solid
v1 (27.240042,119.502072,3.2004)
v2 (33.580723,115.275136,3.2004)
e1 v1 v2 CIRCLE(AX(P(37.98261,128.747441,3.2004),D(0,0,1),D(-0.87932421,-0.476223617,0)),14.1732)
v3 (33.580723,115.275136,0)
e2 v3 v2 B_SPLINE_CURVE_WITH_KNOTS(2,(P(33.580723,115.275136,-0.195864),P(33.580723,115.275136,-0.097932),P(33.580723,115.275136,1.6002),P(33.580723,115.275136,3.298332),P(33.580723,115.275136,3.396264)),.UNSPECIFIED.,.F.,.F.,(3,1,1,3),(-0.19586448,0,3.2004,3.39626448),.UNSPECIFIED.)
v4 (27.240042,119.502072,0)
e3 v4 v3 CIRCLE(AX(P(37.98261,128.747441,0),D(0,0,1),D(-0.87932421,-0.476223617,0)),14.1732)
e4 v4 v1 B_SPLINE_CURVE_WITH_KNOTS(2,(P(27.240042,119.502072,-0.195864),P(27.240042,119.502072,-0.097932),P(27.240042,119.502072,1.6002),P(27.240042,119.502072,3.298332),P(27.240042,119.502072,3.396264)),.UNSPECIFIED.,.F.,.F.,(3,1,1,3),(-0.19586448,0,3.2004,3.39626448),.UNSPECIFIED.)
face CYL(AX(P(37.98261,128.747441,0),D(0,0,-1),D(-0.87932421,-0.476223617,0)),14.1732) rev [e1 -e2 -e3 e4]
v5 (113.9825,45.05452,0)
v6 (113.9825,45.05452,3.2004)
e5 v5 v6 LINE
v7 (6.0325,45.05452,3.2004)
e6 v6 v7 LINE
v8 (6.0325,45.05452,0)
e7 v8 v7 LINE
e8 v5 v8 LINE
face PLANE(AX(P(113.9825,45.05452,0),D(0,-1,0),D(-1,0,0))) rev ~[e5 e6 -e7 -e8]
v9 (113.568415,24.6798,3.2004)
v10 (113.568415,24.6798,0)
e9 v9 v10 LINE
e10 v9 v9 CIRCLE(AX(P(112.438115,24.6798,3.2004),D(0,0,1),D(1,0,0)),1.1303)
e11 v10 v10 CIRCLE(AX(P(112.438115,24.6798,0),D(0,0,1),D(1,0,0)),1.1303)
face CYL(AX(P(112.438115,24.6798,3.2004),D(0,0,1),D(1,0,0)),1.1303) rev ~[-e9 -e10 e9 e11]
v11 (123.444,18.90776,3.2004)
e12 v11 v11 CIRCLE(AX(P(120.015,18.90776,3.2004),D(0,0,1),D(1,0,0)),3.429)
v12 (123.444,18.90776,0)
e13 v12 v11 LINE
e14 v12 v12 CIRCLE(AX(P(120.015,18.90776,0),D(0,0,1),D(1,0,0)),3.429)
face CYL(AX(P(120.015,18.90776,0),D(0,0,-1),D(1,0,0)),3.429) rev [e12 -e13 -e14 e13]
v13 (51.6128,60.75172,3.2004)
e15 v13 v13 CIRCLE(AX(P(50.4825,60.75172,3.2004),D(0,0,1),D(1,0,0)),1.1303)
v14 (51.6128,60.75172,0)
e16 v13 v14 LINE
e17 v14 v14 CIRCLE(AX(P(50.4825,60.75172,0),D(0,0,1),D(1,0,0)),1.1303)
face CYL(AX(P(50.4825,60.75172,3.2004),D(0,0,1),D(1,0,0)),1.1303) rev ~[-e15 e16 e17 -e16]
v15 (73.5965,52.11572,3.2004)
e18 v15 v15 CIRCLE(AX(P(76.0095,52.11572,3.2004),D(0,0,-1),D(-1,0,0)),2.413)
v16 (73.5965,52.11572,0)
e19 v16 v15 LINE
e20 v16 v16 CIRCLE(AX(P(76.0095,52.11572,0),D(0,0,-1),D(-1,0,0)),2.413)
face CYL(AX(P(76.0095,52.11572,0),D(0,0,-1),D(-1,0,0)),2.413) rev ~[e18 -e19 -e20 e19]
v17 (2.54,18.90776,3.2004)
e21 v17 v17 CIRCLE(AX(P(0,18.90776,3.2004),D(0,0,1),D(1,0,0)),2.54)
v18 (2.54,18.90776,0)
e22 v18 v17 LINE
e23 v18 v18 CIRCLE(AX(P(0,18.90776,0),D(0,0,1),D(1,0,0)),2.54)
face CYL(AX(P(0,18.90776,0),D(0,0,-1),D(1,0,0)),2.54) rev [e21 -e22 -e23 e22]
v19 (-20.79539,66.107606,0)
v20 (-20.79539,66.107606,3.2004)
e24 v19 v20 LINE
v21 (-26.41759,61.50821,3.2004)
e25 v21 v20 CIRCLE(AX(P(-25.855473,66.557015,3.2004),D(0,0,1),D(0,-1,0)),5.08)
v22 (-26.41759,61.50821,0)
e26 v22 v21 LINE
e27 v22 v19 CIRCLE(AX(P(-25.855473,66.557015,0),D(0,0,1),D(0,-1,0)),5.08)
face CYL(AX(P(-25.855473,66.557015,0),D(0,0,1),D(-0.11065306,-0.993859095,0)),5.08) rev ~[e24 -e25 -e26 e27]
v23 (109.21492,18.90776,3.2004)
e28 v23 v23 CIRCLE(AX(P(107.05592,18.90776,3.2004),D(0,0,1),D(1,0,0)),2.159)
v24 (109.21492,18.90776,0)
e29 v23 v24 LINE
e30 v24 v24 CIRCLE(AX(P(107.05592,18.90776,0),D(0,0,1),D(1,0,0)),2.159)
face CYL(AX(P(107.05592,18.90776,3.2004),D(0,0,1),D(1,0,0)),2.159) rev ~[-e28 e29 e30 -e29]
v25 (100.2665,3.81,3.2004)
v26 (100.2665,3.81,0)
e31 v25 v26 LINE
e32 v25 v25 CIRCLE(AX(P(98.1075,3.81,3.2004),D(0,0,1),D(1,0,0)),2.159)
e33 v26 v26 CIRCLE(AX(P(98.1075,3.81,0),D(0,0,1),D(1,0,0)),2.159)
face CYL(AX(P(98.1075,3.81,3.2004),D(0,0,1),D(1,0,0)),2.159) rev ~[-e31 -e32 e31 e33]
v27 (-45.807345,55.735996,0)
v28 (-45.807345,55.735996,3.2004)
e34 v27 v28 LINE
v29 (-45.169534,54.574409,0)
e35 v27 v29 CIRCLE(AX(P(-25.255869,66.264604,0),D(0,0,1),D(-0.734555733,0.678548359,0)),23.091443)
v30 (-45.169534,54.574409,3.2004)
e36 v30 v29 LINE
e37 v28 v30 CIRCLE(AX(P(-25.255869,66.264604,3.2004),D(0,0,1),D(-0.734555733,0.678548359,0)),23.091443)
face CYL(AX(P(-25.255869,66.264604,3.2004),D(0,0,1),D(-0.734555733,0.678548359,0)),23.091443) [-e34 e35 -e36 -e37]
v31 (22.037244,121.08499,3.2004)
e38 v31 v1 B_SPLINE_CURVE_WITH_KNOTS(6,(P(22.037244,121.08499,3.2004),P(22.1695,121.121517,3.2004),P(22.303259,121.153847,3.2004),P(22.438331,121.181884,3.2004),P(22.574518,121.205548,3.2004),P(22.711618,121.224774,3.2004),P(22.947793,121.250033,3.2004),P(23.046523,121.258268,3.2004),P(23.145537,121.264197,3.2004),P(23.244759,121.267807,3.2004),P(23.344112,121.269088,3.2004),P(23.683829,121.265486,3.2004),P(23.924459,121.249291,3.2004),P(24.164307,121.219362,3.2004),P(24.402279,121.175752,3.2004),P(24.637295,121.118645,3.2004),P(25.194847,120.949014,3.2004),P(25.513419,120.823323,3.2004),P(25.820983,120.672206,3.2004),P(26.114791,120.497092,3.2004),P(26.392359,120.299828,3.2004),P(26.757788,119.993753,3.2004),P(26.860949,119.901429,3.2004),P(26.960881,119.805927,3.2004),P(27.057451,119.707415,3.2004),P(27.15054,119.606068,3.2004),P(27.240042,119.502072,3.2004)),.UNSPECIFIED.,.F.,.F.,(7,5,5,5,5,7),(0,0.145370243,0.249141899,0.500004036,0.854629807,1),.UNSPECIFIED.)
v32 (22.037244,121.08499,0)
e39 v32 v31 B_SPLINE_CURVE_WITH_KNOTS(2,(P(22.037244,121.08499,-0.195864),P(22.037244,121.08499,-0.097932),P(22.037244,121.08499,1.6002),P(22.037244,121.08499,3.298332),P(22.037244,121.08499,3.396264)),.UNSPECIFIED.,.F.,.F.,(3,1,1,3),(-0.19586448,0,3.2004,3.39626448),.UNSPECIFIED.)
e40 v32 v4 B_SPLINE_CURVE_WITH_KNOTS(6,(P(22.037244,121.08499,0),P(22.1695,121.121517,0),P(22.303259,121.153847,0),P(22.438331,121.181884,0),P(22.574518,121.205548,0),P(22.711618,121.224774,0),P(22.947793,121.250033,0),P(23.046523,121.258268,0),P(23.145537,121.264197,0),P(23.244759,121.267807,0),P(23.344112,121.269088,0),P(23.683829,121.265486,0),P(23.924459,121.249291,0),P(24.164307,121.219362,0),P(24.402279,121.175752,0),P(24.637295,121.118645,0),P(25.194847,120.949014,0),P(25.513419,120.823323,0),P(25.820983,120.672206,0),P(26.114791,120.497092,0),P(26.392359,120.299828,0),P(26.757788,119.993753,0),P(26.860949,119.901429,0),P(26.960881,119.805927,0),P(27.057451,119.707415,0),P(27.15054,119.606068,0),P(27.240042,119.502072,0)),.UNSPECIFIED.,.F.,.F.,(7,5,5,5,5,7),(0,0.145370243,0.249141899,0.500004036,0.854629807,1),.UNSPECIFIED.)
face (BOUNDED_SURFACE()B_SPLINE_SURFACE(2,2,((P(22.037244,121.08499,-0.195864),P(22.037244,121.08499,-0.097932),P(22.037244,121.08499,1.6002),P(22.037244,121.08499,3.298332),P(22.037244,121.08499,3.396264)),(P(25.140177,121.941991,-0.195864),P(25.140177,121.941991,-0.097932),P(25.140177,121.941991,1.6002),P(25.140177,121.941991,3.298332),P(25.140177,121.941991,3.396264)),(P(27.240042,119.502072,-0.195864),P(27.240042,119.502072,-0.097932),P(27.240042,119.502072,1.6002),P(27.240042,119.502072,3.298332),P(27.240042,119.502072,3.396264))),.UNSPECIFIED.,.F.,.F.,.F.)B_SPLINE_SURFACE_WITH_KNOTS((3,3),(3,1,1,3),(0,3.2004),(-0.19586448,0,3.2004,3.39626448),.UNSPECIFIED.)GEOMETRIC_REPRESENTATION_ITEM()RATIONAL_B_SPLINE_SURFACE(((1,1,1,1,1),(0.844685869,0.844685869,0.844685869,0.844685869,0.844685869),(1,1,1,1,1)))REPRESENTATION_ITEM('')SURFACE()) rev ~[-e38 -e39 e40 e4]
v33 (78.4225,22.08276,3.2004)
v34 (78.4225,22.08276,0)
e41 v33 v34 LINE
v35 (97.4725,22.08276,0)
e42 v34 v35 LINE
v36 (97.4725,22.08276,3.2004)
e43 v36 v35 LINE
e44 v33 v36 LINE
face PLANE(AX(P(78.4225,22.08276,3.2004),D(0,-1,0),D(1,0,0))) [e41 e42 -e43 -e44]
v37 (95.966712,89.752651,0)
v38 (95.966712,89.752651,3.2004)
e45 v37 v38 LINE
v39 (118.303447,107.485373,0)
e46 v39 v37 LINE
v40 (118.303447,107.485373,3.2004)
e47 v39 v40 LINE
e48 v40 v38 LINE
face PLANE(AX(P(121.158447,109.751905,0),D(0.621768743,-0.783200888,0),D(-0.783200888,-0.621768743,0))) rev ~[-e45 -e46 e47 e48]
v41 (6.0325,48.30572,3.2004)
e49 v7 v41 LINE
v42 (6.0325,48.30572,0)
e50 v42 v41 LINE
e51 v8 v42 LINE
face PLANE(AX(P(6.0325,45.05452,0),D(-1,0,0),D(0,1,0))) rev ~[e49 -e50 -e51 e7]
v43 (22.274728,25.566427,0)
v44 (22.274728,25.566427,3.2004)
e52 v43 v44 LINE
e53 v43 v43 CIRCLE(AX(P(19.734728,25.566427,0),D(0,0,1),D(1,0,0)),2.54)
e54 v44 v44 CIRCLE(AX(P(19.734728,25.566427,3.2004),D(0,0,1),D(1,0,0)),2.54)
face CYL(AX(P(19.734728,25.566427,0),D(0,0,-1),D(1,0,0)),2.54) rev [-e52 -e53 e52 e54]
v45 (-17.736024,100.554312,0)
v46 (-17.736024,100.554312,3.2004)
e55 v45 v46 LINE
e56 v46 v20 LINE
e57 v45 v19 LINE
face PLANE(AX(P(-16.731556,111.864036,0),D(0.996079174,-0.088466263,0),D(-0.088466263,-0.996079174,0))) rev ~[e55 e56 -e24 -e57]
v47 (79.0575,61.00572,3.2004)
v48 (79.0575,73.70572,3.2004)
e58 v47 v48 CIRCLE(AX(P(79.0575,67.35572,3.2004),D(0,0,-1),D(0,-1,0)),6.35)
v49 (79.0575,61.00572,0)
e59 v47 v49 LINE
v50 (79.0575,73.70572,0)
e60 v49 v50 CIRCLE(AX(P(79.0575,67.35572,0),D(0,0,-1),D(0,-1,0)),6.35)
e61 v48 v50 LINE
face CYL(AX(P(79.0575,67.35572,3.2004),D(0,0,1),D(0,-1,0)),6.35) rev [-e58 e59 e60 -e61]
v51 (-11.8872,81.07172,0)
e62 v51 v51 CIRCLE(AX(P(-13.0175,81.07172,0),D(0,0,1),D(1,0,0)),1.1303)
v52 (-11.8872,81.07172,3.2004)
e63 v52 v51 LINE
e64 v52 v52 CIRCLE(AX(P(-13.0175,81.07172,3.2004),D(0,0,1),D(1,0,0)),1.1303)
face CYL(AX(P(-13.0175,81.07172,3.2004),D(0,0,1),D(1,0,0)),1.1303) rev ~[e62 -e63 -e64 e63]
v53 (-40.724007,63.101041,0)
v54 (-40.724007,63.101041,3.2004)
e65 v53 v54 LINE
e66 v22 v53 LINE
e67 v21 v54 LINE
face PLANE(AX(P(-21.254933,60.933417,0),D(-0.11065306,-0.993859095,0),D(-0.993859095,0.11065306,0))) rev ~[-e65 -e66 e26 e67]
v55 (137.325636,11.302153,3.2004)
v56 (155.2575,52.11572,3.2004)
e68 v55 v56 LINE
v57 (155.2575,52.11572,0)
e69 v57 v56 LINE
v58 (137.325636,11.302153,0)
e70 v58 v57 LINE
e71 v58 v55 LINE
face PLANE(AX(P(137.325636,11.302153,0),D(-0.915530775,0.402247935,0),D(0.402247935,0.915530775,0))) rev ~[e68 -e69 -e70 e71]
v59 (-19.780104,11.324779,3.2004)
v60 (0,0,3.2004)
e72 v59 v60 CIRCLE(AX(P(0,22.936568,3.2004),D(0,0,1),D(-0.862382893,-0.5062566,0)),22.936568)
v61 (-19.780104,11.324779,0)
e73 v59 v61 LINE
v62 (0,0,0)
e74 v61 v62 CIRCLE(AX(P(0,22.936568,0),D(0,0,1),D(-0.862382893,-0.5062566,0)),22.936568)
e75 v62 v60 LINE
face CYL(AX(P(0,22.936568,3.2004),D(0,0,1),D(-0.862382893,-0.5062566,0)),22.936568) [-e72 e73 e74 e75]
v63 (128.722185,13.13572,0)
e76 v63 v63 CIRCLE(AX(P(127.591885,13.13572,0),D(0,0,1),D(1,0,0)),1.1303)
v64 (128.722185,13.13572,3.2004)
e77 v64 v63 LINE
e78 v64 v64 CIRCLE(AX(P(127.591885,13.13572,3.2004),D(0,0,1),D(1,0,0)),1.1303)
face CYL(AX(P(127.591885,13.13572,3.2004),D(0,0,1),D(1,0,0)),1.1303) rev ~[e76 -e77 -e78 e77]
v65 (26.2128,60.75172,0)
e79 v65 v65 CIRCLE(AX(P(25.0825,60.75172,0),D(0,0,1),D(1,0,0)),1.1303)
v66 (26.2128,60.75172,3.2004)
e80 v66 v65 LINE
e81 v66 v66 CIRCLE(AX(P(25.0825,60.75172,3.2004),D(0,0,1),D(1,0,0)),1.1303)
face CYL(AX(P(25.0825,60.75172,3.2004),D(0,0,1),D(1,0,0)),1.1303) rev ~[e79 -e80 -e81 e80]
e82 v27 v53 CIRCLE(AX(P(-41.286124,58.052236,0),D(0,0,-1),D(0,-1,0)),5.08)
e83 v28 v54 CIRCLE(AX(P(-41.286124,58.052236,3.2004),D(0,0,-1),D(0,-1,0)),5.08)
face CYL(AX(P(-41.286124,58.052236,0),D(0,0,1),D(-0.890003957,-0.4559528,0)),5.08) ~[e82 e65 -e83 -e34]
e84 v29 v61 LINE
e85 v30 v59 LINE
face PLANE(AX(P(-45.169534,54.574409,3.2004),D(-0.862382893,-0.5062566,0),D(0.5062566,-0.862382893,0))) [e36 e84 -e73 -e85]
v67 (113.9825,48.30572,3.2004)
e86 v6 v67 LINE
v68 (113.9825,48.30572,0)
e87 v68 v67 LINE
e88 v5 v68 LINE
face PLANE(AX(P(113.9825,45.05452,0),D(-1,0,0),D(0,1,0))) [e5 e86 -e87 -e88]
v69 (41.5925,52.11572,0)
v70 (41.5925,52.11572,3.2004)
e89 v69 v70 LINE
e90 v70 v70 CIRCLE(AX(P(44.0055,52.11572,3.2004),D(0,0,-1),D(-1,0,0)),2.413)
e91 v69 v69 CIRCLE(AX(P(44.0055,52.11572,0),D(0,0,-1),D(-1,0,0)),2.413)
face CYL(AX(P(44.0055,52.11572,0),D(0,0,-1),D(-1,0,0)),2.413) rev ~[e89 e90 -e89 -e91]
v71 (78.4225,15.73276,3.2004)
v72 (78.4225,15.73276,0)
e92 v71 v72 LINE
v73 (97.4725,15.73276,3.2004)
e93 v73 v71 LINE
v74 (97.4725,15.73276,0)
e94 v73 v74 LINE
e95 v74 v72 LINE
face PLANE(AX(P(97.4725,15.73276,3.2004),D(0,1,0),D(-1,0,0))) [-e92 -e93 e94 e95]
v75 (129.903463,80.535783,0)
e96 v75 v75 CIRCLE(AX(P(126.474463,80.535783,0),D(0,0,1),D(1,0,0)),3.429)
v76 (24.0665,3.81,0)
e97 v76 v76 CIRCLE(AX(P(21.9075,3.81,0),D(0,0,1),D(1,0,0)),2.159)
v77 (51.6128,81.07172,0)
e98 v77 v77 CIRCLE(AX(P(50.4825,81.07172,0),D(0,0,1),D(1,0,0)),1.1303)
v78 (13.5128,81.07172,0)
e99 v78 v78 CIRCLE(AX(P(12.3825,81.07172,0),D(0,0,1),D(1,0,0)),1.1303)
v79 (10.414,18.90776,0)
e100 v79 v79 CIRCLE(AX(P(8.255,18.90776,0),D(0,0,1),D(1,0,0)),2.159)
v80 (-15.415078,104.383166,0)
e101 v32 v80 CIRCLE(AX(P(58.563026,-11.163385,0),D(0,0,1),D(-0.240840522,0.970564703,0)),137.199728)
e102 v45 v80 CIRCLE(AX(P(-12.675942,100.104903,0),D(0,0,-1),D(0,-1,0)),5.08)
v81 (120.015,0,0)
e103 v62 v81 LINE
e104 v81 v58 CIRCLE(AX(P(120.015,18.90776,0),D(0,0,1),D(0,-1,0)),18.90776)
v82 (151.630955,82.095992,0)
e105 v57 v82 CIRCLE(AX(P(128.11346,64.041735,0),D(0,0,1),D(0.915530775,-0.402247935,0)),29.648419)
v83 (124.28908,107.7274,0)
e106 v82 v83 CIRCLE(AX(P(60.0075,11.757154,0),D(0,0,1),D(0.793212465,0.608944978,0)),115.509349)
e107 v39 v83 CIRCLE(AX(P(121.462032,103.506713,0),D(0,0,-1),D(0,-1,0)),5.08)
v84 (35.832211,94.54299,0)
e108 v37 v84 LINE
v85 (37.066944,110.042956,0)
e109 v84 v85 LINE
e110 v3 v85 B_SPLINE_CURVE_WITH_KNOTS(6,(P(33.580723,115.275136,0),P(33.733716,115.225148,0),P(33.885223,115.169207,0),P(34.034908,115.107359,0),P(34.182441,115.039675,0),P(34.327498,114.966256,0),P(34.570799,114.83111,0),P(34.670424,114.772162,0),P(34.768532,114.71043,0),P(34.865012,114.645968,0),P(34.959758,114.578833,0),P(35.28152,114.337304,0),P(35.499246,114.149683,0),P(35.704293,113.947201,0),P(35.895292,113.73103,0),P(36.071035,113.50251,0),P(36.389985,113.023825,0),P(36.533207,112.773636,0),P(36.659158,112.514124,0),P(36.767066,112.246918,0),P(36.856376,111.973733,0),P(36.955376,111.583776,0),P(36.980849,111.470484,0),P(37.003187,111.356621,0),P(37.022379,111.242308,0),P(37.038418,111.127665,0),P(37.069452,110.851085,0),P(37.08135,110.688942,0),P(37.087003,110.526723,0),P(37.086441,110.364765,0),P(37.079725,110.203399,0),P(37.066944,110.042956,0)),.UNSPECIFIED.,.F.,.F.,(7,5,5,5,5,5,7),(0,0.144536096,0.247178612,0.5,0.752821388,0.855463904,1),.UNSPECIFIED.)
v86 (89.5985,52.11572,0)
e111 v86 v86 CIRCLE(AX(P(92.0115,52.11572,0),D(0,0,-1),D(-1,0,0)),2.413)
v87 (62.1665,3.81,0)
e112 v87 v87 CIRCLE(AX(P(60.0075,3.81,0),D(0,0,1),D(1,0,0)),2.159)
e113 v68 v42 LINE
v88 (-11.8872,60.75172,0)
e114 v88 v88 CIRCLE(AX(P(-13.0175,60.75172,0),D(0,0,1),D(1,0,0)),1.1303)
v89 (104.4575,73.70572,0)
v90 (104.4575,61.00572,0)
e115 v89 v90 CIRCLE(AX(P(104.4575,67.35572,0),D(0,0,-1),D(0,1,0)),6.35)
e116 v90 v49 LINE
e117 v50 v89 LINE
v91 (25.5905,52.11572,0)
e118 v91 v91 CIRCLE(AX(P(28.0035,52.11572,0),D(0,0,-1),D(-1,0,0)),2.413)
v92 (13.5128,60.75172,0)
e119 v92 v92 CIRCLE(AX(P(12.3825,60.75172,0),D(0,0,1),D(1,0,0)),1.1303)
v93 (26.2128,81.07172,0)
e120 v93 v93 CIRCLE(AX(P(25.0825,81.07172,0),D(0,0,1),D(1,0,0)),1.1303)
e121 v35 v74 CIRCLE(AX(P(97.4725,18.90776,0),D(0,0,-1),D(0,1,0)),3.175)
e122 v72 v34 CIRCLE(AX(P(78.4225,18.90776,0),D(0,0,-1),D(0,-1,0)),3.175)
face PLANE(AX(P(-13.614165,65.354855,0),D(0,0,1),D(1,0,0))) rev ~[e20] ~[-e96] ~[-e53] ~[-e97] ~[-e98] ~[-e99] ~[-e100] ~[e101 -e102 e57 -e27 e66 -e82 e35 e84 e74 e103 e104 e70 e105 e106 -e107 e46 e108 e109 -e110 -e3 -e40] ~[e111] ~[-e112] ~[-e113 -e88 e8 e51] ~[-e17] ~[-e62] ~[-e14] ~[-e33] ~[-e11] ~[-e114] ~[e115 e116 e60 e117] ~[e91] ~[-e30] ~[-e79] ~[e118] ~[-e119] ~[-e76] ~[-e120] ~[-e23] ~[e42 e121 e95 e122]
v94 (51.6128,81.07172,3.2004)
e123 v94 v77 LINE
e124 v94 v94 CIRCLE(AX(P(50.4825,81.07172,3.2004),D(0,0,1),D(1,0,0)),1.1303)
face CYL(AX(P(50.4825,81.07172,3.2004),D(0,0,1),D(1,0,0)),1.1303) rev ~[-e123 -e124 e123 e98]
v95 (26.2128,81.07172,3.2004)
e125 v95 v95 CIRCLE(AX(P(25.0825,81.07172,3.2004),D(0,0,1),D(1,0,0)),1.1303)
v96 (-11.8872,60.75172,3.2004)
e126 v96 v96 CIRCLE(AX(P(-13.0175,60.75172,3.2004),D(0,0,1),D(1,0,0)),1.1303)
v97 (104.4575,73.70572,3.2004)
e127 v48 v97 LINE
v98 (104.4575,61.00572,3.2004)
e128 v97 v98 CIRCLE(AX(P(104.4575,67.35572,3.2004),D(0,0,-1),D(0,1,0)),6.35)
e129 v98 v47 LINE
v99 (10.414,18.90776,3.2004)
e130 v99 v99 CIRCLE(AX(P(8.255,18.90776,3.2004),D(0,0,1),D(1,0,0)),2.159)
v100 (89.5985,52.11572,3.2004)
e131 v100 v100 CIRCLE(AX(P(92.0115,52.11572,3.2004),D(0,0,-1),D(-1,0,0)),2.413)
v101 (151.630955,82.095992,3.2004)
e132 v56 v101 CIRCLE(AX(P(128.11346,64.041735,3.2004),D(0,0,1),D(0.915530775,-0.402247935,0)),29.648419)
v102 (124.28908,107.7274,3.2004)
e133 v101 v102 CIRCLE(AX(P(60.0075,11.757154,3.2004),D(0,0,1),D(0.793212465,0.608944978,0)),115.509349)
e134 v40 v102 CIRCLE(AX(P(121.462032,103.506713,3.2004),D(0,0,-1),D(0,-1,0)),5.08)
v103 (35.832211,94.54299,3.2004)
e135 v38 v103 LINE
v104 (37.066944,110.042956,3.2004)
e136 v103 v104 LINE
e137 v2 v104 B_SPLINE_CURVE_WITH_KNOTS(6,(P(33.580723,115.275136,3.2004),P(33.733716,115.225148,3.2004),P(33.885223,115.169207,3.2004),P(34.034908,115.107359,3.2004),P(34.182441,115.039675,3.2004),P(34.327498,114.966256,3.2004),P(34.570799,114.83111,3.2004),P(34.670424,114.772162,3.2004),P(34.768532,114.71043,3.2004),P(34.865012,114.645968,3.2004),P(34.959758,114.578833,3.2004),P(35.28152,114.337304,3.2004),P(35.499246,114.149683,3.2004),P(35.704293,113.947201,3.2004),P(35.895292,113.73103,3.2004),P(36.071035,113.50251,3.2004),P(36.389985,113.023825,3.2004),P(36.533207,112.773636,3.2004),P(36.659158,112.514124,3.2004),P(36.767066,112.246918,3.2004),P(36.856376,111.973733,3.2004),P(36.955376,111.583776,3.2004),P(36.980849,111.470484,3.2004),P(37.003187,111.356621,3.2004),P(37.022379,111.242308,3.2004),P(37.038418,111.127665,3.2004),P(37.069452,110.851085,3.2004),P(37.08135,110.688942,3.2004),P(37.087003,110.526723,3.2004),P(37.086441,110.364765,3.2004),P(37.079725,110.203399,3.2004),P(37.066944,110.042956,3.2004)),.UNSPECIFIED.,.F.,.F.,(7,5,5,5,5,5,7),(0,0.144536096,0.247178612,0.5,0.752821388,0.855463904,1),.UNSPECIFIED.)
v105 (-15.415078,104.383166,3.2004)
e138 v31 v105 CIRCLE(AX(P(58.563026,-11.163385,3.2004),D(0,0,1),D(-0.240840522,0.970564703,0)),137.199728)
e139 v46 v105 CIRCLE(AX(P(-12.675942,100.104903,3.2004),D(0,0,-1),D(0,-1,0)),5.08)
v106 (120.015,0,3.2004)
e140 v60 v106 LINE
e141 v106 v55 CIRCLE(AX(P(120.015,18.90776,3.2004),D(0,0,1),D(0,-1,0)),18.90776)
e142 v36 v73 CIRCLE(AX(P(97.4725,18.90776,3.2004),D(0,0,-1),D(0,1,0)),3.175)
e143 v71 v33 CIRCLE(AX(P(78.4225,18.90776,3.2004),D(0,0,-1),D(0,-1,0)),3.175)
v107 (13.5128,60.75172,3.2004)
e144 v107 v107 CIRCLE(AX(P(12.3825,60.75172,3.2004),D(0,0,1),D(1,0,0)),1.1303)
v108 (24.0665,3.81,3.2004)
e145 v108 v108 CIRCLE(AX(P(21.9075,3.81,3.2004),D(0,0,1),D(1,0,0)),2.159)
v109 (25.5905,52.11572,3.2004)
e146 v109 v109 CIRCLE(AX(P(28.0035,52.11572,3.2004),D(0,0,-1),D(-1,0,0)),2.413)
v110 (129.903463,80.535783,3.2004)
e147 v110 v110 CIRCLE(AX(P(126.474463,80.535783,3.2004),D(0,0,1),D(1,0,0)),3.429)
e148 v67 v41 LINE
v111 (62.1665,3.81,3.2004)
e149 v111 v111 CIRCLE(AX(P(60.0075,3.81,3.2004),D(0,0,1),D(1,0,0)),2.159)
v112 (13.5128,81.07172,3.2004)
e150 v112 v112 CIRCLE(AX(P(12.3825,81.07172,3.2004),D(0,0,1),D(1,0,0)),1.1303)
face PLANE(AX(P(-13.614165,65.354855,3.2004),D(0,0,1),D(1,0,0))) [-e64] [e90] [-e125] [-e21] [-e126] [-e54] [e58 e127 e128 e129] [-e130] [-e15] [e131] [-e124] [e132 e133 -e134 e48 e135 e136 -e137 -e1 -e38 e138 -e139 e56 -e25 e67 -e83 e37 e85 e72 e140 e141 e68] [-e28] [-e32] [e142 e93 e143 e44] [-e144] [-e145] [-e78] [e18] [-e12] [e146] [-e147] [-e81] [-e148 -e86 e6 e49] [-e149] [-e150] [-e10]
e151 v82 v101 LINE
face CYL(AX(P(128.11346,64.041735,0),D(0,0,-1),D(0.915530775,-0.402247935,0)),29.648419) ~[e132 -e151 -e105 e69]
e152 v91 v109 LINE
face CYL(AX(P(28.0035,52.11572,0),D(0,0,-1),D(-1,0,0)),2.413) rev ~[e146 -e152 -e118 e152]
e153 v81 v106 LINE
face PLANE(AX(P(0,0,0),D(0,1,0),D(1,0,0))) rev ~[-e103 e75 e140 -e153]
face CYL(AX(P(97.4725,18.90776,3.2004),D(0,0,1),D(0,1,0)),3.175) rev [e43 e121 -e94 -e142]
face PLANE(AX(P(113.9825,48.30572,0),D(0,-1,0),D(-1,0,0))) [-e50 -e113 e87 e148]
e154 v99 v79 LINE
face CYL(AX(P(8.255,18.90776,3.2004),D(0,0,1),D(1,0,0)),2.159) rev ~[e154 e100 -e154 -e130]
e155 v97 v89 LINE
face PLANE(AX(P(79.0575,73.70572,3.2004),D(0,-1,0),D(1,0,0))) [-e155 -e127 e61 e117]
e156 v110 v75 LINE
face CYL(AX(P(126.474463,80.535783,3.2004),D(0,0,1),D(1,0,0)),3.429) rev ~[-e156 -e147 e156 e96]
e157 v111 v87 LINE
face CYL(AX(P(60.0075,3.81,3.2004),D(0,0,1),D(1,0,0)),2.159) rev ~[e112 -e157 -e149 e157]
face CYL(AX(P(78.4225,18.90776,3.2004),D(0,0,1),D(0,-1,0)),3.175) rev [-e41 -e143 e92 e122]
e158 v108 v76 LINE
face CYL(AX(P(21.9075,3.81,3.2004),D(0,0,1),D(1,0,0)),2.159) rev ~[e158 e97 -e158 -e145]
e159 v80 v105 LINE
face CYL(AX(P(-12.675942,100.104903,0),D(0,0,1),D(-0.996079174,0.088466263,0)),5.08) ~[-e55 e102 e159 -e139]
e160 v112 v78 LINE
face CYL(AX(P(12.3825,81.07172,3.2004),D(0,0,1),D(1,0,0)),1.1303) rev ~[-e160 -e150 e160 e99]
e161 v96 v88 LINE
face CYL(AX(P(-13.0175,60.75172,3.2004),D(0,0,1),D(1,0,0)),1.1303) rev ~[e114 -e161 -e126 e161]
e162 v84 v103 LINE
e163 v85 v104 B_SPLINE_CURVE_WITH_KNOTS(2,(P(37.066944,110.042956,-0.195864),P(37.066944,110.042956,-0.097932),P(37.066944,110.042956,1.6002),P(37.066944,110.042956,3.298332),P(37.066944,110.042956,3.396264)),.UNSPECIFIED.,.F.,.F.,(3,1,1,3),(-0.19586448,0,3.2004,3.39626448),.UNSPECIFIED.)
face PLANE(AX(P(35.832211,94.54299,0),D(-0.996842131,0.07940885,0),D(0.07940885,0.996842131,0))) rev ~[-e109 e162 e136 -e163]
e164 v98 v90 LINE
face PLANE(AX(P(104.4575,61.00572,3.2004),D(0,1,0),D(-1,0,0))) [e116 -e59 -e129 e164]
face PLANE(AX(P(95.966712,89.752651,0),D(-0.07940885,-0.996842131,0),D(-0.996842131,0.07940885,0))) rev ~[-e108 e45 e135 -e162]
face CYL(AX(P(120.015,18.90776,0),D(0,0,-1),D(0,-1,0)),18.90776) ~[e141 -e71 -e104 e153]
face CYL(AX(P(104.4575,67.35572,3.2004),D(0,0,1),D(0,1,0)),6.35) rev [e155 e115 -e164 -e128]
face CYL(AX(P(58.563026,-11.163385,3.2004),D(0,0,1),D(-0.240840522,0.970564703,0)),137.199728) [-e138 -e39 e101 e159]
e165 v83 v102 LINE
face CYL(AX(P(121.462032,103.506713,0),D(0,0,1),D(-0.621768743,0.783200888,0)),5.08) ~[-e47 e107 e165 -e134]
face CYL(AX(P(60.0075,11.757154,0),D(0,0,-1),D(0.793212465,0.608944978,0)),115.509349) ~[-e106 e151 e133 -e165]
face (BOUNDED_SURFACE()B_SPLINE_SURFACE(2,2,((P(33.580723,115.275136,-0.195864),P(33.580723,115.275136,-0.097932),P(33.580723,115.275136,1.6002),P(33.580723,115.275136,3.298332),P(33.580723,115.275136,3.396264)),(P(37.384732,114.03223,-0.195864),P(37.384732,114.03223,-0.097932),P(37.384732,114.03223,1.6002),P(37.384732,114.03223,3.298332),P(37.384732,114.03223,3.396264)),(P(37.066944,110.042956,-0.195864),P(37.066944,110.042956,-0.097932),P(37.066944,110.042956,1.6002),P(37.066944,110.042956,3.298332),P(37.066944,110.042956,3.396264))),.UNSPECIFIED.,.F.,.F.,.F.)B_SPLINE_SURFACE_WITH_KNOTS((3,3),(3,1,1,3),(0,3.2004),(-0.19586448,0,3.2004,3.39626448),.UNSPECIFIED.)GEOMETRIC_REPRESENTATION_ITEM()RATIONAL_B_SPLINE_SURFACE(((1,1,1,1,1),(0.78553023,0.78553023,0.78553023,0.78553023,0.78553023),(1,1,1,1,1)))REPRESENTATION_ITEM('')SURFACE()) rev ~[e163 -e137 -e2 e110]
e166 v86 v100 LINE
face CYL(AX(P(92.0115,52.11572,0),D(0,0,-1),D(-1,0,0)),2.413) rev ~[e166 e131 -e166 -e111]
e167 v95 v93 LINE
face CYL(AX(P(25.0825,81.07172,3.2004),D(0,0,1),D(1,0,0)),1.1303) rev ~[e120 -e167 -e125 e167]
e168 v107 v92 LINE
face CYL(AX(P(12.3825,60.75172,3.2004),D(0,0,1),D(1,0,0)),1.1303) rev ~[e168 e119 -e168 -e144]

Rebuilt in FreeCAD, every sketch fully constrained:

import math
import FreeCAD as App
import Part
import Sketcher
Q = App.Units.Quantity


def edges_at(feature, points):
    """Names of the edges that pass closest to the given points."""
    edges = feature.Shape.Edges
    near = lambda p: min(range(len(edges)), key=lambda i: edges[i].distToShape(Part.Vertex(*p))[0])
    return sorted({f"Edge{near(p) + 1}" for p in points})

doc = App.newDocument("Part")
params = doc.addObject("Spreadsheet::Sheet", "Params")
for row, (alias, value) in enumerate([
    ("sketch1_diameter", "0.2 in"),
    ("sketch1_diameter2", "0.27 in"),
    ("sketch1_width", "4.725 in"),
    ("pad1_length", "0.126 in"),
    ("sketch2_diameter", "0.19 in"),
    ("pocket1_length", "0.126 in"),
    ("sketch3_diameter", "0.17 in"),
    ("pocket2_length", "0.126 in"),
    ("sketch4_width", "4.25 in"),
    ("sketch4_height", "0.128 in"),
    ("pocket3_length", "0.126 in"),
    ("sketch5_diameter", "0.27 in"),
    ("pocket4_length", "0.126 in"),
    ("sketch6_length", "2.375 in"),
    ("pocket5_length", "0.126 in"),
    ("sketch7_radius", "0.558 in"),
    ("pocket6_length", "0.126 in"),
    ("pad2_length", "0.126 in"),
    ("sketch9_diameter", "0.089 in"),
    ("pocket7_length", "0.126 in"),
    ("sketch10_width", "1 in"),
    ("sketch10_radius", "0.25 in"),
    ("sketch10_radius2", "0.125 in"),
    ("sketch10_width2", "0.75 in"),
    ("pocket8_length", "0.126 in"),
    ("fillet_radius", "0.2 in"),
    ("sketch11_diameter", "0.089 in"),
    ("pocket9_length", "0.126 in"),
    ("sketch12_diameter", "0.17 in"),
    ("pocket10_length", "0.126 in"),
    ("pocket11_length", "0.126 in"),
    ("fillet2_radius", "0.2 in"),
], start=1):
    params.set(f"A{row}", alias)
    params.set(f"B{row}", "=" + value)
    params.setAlias(f"B{row}", alias)

body = doc.addObject("PartDesign::Body", "Body")

# Sketch on XY plane
sketch1 = doc.addObject("Sketcher::SketchObject", "Sketch")
body.addObject(sketch1)
sketch1.AttachmentSupport = (doc.XY_Plane, [""])
sketch1.MapMode = "FlatFace"
sketch1.addGeometry(Part.LineSegment(App.Vector(0, 0, 0), App.Vector(120, 0, 0)), False)
sketch1.addGeometry(Part.ArcOfCircle(Part.Circle(App.Vector(120, 18.9, 0), App.Vector(0, 0, 1), 18.9), math.radians(-90), math.radians(-24)), False)
sketch1.addGeometry(Part.LineSegment(App.Vector(137.3, 11.3, 0), App.Vector(155.3, 52.1, 0)), False)
sketch1.addGeometry(Part.ArcOfCircle(Part.Circle(App.Vector(128.1, 64, 0), App.Vector(0, 0, 1), 29.6), math.radians(-24), math.radians(38)), False)
sketch1.addGeometry(Part.ArcOfCircle(Part.Circle(App.Vector(60, 11.8, 0), App.Vector(0, 0, 1), 115.5), math.radians(38), math.radians(142)), False)
sketch1.addGeometry(Part.ArcOfCircle(Part.Circle(App.Vector(-8.1, 64, 0), App.Vector(0, 0, 1), 29.6), math.radians(142), math.radians(204)), False)
sketch1.addGeometry(Part.LineSegment(App.Vector(-35.2, 52.1, 0), App.Vector(-17.3, 11.3, 0)), False)
sketch1.addGeometry(Part.ArcOfCircle(Part.Circle(App.Vector(0, 18.9, 0), App.Vector(0, 0, 1), 18.9), math.radians(-156), math.radians(-90)), False)
sketch1.addGeometry(Part.Circle(App.Vector(0, 18.9, 0), App.Vector(0, 0, 1), 2.5), False)
sketch1.addGeometry(Part.Circle(App.Vector(120, 18.9, 0), App.Vector(0, 0, 1), 3.4), False)
sketch1.addGeometry(Part.Circle(App.Vector(19.7, 25.6, 0), App.Vector(0, 0, 1), 2.5), False)
sketch1.addConstraint(Sketcher.Constraint("Tangent", 0, 2, 1, 1))
sketch1.addConstraint(Sketcher.Constraint("Tangent", 1, 2, 2, 1))
sketch1.addConstraint(Sketcher.Constraint("Tangent", 2, 2, 3, 1))
sketch1.addConstraint(Sketcher.Constraint("Tangent", 3, 2, 4, 1))
sketch1.addConstraint(Sketcher.Constraint("Tangent", 4, 2, 5, 1))
sketch1.addConstraint(Sketcher.Constraint("Tangent", 5, 2, 6, 1))
sketch1.addConstraint(Sketcher.Constraint("Tangent", 6, 2, 7, 1))
sketch1.addConstraint(Sketcher.Constraint("Tangent", 7, 2, 0, 1))
sketch1.addConstraint(Sketcher.Constraint("Horizontal", 0))
sketch1.addConstraint(Sketcher.Constraint("Coincident", 7, 2, -1, 1))
sketch1.addConstraint(Sketcher.Constraint("Coincident", 8, 3, 7, 3))
sketch1.addConstraint(Sketcher.Constraint("Coincident", 9, 3, 1, 3))
sketch1.addConstraint(Sketcher.Constraint("Equal", 3, 5))
sketch1.addConstraint(Sketcher.Constraint("Equal", 1, 7))
sketch1.addConstraint(Sketcher.Constraint("Equal", 8, 10))
sketch1.addConstraint(Sketcher.Constraint("Horizontal", 3, 3, 5, 3))
sketch1.addConstraint(Sketcher.Constraint("Horizontal", 2, 2, 5, 2))
sketch1.addConstraint(Sketcher.Constraint("Diameter", 8, Q("0.2 in")))
sketch1.addConstraint(Sketcher.Constraint("Diameter", 9, Q("0.27 in")))
sketch1.addConstraint(Sketcher.Constraint("Radius", 1, Q("0.7444 in")))
sketch1.addConstraint(Sketcher.Constraint("DistanceX", 0, 1, 0, 2, Q("4.725 in")))
sketch1.addConstraint(Sketcher.Constraint("Radius", 3, 29.648419))
sketch1.addConstraint(Sketcher.Constraint("Radius", 4, 115.509349))
sketch1.addConstraint(Sketcher.Constraint("DistanceX", -1, 1, 2, 2, Q("6.1125 in")))
sketch1.addConstraint(Sketcher.Constraint("DistanceY", -1, 1, 2, 2, Q("2.0518 in")))
sketch1.addConstraint(Sketcher.Constraint("DistanceY", 10, 3, 5, 3, 38.475308))
sketch1.addConstraint(Sketcher.Constraint("DistanceX", -1, 1, 10, 3, 19.734728))
sketch1.setExpression("Constraints[17]", "Params.sketch1_diameter")
sketch1.setExpression("Constraints[18]", "Params.sketch1_diameter2")
sketch1.setExpression("Constraints[20]", "Params.sketch1_width")
pad1 = doc.addObject("PartDesign::Pad", "Pad")
body.addObject(pad1)
pad1.Profile = sketch1
pad1.setExpression("Length", "Params.pad1_length")

# Sketch on XY plane
sketch2 = doc.addObject("Sketcher::SketchObject", "Sketch001")
body.addObject(sketch2)
sketch2.AttachmentSupport = (doc.XY_Plane, [""])
sketch2.MapMode = "FlatFace"
sketch2.addGeometry(Part.Circle(App.Vector(92, 52.1, 0), App.Vector(0, 0, 1), 2.4), False)
sketch2.addGeometry(Part.Circle(App.Vector(76, 52.1, 0), App.Vector(0, 0, 1), 2.4), False)
sketch2.addGeometry(Part.Circle(App.Vector(44, 52.1, 0), App.Vector(0, 0, 1), 2.4), False)
sketch2.addGeometry(Part.Circle(App.Vector(28, 52.1, 0), App.Vector(0, 0, 1), 2.4), False)
sketch2.addConstraint(Sketcher.Constraint("Equal", 0, 1))
sketch2.addConstraint(Sketcher.Constraint("Equal", 1, 2))
sketch2.addConstraint(Sketcher.Constraint("Equal", 2, 3))
sketch2.addConstraint(Sketcher.Constraint("Horizontal", 0, 3, 1, 3))
sketch2.addConstraint(Sketcher.Constraint("Horizontal", 1, 3, 2, 3))
sketch2.addConstraint(Sketcher.Constraint("Horizontal", 2, 3, 3, 3))
sketch2.addConstraint(Sketcher.Constraint("Diameter", 0, Q("0.19 in")))
sketch2.addConstraint(Sketcher.Constraint("DistanceX", 1, 3, 0, 3, Q("0.63 in")))
sketch2.addConstraint(Sketcher.Constraint("DistanceX", 2, 3, 1, 3, Q("1.26 in")))
sketch2.addConstraint(Sketcher.Constraint("DistanceX", 3, 3, 2, 3, Q("0.63 in")))
sketch2.addConstraint(Sketcher.Constraint("DistanceX", -1, 1, 0, 3, Q("3.6225 in")))
sketch2.addConstraint(Sketcher.Constraint("DistanceY", -1, 1, 0, 3, Q("2.0518 in")))
sketch2.setExpression("Constraints[6]", "Params.sketch2_diameter")
pocket1 = doc.addObject("PartDesign::Pocket", "Pocket")
body.addObject(pocket1)
pocket1.Profile = sketch2
pocket1.setExpression("Length", "Params.pocket1_length")
pocket1.Reversed = True

# Sketch on XY plane
sketch3 = doc.addObject("Sketcher::SketchObject", "Sketch002")
body.addObject(sketch3)
sketch3.AttachmentSupport = (doc.XY_Plane, [""])
sketch3.MapMode = "FlatFace"
sketch3.AttachmentOffset = App.Placement(App.Vector(0, 0, 0.126 * 25.4), App.Rotation())
sketch3.addGeometry(Part.Circle(App.Vector(21.9, 3.8, 0), App.Vector(0, 0, 1), 2.2), False)
sketch3.addGeometry(Part.Circle(App.Vector(60, 3.8, 0), App.Vector(0, 0, 1), 2.2), False)
sketch3.addGeometry(Part.Circle(App.Vector(98.1, 3.8, 0), App.Vector(0, 0, 1), 2.2), False)
sketch3.addConstraint(Sketcher.Constraint("Equal", 0, 1))
sketch3.addConstraint(Sketcher.Constraint("Equal", 1, 2))
sketch3.addConstraint(Sketcher.Constraint("Horizontal", 0, 3, 1, 3))
sketch3.addConstraint(Sketcher.Constraint("Horizontal", 1, 3, 2, 3))
sketch3.addConstraint(Sketcher.Constraint("Diameter", 0, Q("0.17 in")))
sketch3.addConstraint(Sketcher.Constraint("DistanceX", 0, 3, 2, 3, Q("3 in")))
sketch3.addConstraint(Sketcher.Constraint("DistanceX", 0, 3, 1, 3, Q("1.5 in")))
sketch3.addConstraint(Sketcher.Constraint("DistanceY", -1, 1, 0, 3, Q("0.15 in")))
sketch3.addConstraint(Sketcher.Constraint("DistanceX", -1, 1, 0, 3, Q("0.8625 in")))
sketch3.setExpression("Constraints[4]", "Params.sketch3_diameter")
pocket2 = doc.addObject("PartDesign::Pocket", "Pocket001")
body.addObject(pocket2)
pocket2.Profile = sketch3
pocket2.setExpression("Length", "Params.pocket2_length")

# Sketch on XY plane
sketch4 = doc.addObject("Sketcher::SketchObject", "Sketch003")
body.addObject(sketch4)
sketch4.AttachmentSupport = (doc.XY_Plane, [""])
sketch4.MapMode = "FlatFace"
sketch4.addGeometry(Part.LineSegment(App.Vector(114, 48.3, 0), App.Vector(114, 45.1, 0)), False)
sketch4.addGeometry(Part.LineSegment(App.Vector(114, 45.1, 0), App.Vector(6, 45.1, 0)), False)
sketch4.addGeometry(Part.LineSegment(App.Vector(6, 45.1, 0), App.Vector(6, 48.3, 0)), False)
sketch4.addGeometry(Part.LineSegment(App.Vector(6, 48.3, 0), App.Vector(114, 48.3, 0)), False)
sketch4.addConstraint(Sketcher.Constraint("Coincident", 0, 2, 1, 1))
sketch4.addConstraint(Sketcher.Constraint("Coincident", 1, 2, 2, 1))
sketch4.addConstraint(Sketcher.Constraint("Coincident", 2, 2, 3, 1))
sketch4.addConstraint(Sketcher.Constraint("Coincident", 3, 2, 0, 1))
sketch4.addConstraint(Sketcher.Constraint("Vertical", 0))
sketch4.addConstraint(Sketcher.Constraint("Horizontal", 1))
sketch4.addConstraint(Sketcher.Constraint("Vertical", 2))
sketch4.addConstraint(Sketcher.Constraint("Horizontal", 3))
sketch4.addConstraint(Sketcher.Constraint("DistanceX", 1, 2, 1, 1, Q("4.25 in")))
sketch4.addConstraint(Sketcher.Constraint("DistanceY", 0, 2, 0, 1, Q("0.128 in")))
sketch4.addConstraint(Sketcher.Constraint("DistanceX", -1, 1, 0, 2, Q("4.4875 in")))
sketch4.addConstraint(Sketcher.Constraint("DistanceY", -1, 1, 0, 2, Q("1.7738 in")))
sketch4.setExpression("Constraints[8]", "Params.sketch4_width")
sketch4.setExpression("Constraints[9]", "Params.sketch4_height")
pocket3 = doc.addObject("PartDesign::Pocket", "Pocket002")
body.addObject(pocket3)
pocket3.Profile = sketch4
pocket3.setExpression("Length", "Params.pocket3_length")
pocket3.Reversed = True

# Sketch on XY plane
sketch5 = doc.addObject("Sketcher::SketchObject", "Sketch004")
body.addObject(sketch5)
sketch5.AttachmentSupport = (doc.XY_Plane, [""])
sketch5.MapMode = "FlatFace"
sketch5.AttachmentOffset = App.Placement(App.Vector(0, 0, 0.126 * 25.4), App.Rotation())
sketch5.addGeometry(Part.Circle(App.Vector(126.5, 80.5, 0), App.Vector(0, 0, 1), 3.4), False)
sketch5.addConstraint(Sketcher.Constraint("Diameter", 0, Q("0.27 in")))
sketch5.addConstraint(Sketcher.Constraint("DistanceY", -1, 1, 0, 3, Q("3.1707001 in")))
sketch5.addConstraint(Sketcher.Constraint("DistanceX", -1, 1, 0, 3, 126.474463))
sketch5.setExpression("Constraints[0]", "Params.sketch5_diameter")
pocket4 = doc.addObject("PartDesign::Pocket", "Pocket003")
body.addObject(pocket4)
pocket4.Profile = sketch5
pocket4.setExpression("Length", "Params.pocket4_length")

# Sketch on XY plane
sketch6 = doc.addObject("Sketcher::SketchObject", "Sketch005")
body.addObject(sketch6)
sketch6.AttachmentSupport = (doc.XY_Plane, [""])
sketch6.MapMode = "FlatFace"
sketch6.addGeometry(Part.LineSegment(App.Vector(95.966712, 89.752651, 0), App.Vector(121.158447, 109.751905, 0)), False)
sketch6.addGeometry(Part.ArcOfCircle(Part.Circle(App.Vector(60.0075, 11.757154, 0), App.Vector(0, 0, 1), 115.509349), math.radians(58.034902), math.radians(100.844724)), False)
sketch6.addGeometry(Part.LineSegment(App.Vector(38.274646, 125.203585, 0), App.Vector(35.832211, 94.54299, 0)), False)
sketch6.addGeometry(Part.LineSegment(App.Vector(35.832211, 94.54299, 0), App.Vector(95.966712, 89.752651, 0)), False)
sketch6.addConstraint(Sketcher.Constraint("Coincident", 0, 2, 1, 1))
sketch6.addConstraint(Sketcher.Constraint("Coincident", 1, 2, 2, 1))
sketch6.addConstraint(Sketcher.Constraint("Coincident", 2, 2, 3, 1))
sketch6.addConstraint(Sketcher.Constraint("Coincident", 3, 2, 0, 1))
sketch6.addConstraint(Sketcher.Constraint("Distance", 3, Q("2.375 in")))
sketch6.addConstraint(Sketcher.Constraint("Radius", 1, 115.509349))
sketch6.addConstraint(Sketcher.Constraint("DistanceX", -1, 1, 1, 3, Q("2.3625 in")))
sketch6.addConstraint(Sketcher.Constraint("DistanceX", 2, 2, 3, 2, Q("2.3675001 in")))
sketch6.addConstraint(Sketcher.Constraint("Distance", 0, 32.1651))
sketch6.addConstraint(Sketcher.Constraint("DistanceX", 1, 2, 0, 2, 82.883801))
sketch6.addConstraint(Sketcher.Constraint("DistanceX", -1, 1, 2, 2, 35.832211))
sketch6.addConstraint(Sketcher.Constraint("DistanceY", -1, 1, 2, 2, 94.54299))
sketch6.addConstraint(Sketcher.Constraint("DistanceY", 1, 3, 0, 2, 97.994752))
sketch6.setExpression("Constraints[4]", "Params.sketch6_length")
pocket5 = doc.addObject("PartDesign::Pocket", "Pocket004")
body.addObject(pocket5)
pocket5.Profile = sketch6
pocket5.setExpression("Length", "Params.pocket5_length")
pocket5.Reversed = True

# Sketch on XY plane
sketch7 = doc.addObject("Sketcher::SketchObject", "Sketch006")
body.addObject(sketch7)
sketch7.AttachmentSupport = (doc.XY_Plane, [""])
sketch7.MapMode = "FlatFace"
sketch7.addGeometry(Part.LineSegment(App.Vector(36.857132, 114.618998, 0), App.Vector(37.427852, 114.573534, 0)), False)
sketch7.addGeometry(Part.LineSegment(App.Vector(37.427852, 114.573534, 0), App.Vector(38.274646, 125.203585, 0)), False)
sketch7.addGeometry(Part.ArcOfCircle(Part.Circle(App.Vector(60.0075, 11.757153, 0), App.Vector(0, 0, 1), 115.509349), math.radians(100.844724), math.radians(107.371787)), False)
sketch7.addGeometry(Part.ArcOfCircle(Part.Circle(App.Vector(37.98261, 128.747441, 0), App.Vector(0, 0, 1), 14.1732), math.radians(-151.56095), math.radians(-94.554587)), False)
sketch7.addConstraint(Sketcher.Constraint("Coincident", 0, 2, 1, 1))
sketch7.addConstraint(Sketcher.Constraint("Coincident", 1, 2, 2, 1))
sketch7.addConstraint(Sketcher.Constraint("Coincident", 2, 2, 3, 1))
sketch7.addConstraint(Sketcher.Constraint("Coincident", 3, 2, 0, 1))
sketch7.addConstraint(Sketcher.Constraint("Radius", 3, Q("0.558 in")))
sketch7.addConstraint(Sketcher.Constraint("Radius", 2, 115.509349))
sketch7.addConstraint(Sketcher.Constraint("DistanceX", -1, 1, 2, 3, Q("2.3625 in")))
sketch7.addConstraint(Sketcher.Constraint("DistanceX", -1, 1, 3, 3, 37.98261))
sketch7.addConstraint(Sketcher.Constraint("DistanceY", -1, 1, 3, 3, 128.747441))
sketch7.addConstraint(Sketcher.Constraint("DistanceX", -1, 1, 2, 2, 25.519772))
sketch7.addConstraint(Sketcher.Constraint("DistanceY", 2, 3, 0, 2, 102.816381))
sketch7.addConstraint(Sketcher.Constraint("DistanceY", 0, 2, 1, 2, 10.630051))
sketch7.addConstraint(Sketcher.Constraint("DistanceX", 2, 2, 0, 2, 11.90808))
sketch7.addConstraint(Sketcher.Constraint("DistanceX", 3, 2, 0, 2, 0.57072))
sketch7.setExpression("Constraints[4]", "Params.sketch7_radius")
pocket6 = doc.addObject("PartDesign::Pocket", "Pocket005")
body.addObject(pocket6)
pocket6.Profile = sketch7
pocket6.setExpression("Length", "Params.pocket6_length")
pocket6.Reversed = True

# Sketch on XY plane
sketch8 = doc.addObject("Sketcher::SketchObject", "Sketch007")
body.addObject(sketch8)
sketch8.AttachmentSupport = (doc.XY_Plane, [""])
sketch8.MapMode = "FlatFace"
sketch8.AttachmentOffset = App.Placement(App.Vector(0, 0, 0.126 * 25.4), App.Rotation())
sketch8.addGeometry(Part.LineSegment(App.Vector(-45, 55, 0), App.Vector(-20, 11, 0)), False)
sketch8.addGeometry(Part.ArcOfCircle(Part.Circle(App.Vector(0, 23, 0), App.Vector(0, 0, 1), 23), math.radians(-150), math.radians(-90)), False)
sketch8.addGeometry(Part.ArcOfCircle(Part.Circle(App.Vector(73, 48, 0), App.Vector(0, 0, 1), 88), math.radians(123), math.radians(214)), False)
sketch8.addGeometry(Part.ArcOfCircle(Part.Circle(App.Vector(59, -11, 0), App.Vector(0, 0, 1), 137), math.radians(104), math.radians(137)), False)
sketch8.addGeometry(Part.ArcOfCircle(Part.Circle(App.Vector(-25, 66, 0), App.Vector(0, 0, 1), 23), math.radians(137), math.radians(210)), False)
sketch8.addConstraint(Sketcher.Constraint("Tangent", 0, 2, 1, 1))
sketch8.addConstraint(Sketcher.Constraint("Coincident", 1, 2, 2, 2))
sketch8.addConstraint(Sketcher.Constraint("Coincident", 2, 1, 3, 1))
sketch8.addConstraint(Sketcher.Constraint("Tangent", 3, 2, 4, 1))
sketch8.addConstraint(Sketcher.Constraint("Tangent", 4, 2, 0, 1))
sketch8.addConstraint(Sketcher.Constraint("Coincident", 1, 2, -1, 1))
sketch8.addConstraint(Sketcher.Constraint("PointOnObject", 1, 3, -2))
sketch8.addConstraint(Sketcher.Constraint("Radius", 1, 22.936568))
sketch8.addConstraint(Sketcher.Constraint("Radius", 2, 87.538137))
sketch8.addConstraint(Sketcher.Constraint("Radius", 3, 137.199728))
sketch8.addConstraint(Sketcher.Constraint("Radius", 4, 23.091443))
sketch8.addConstraint(Sketcher.Constraint("DistanceX", 3, 3, 2, 3, 14.370001))
sketch8.addConstraint(Sketcher.Constraint("DistanceX", 4, 3, -1, 1, 25.255869))
sketch8.addConstraint(Sketcher.Constraint("DistanceY", -1, 1, 0, 2, 11.324779))
sketch8.addConstraint(Sketcher.Constraint("DistanceX", -1, 1, 2, 1, 25.519772))
pad2 = doc.addObject("PartDesign::Pad", "Pad001")
body.addObject(pad2)
pad2.Profile = sketch8
pad2.setExpression("Length", "Params.pad2_length")
pad2.Reversed = True

# Sketch on XY plane
sketch9 = doc.addObject("Sketcher::SketchObject", "Sketch008")
body.addObject(sketch9)
sketch9.AttachmentSupport = (doc.XY_Plane, [""])
sketch9.MapMode = "FlatFace"
sketch9.AttachmentOffset = App.Placement(App.Vector(0, 0, 0.126 * 25.4), App.Rotation())
sketch9.addGeometry(Part.Circle(App.Vector(50.5, 81.1, 0), App.Vector(0, 0, 1), 1.1), False)
sketch9.addGeometry(Part.Circle(App.Vector(50.5, 60.8, 0), App.Vector(0, 0, 1), 1.1), False)
sketch9.addGeometry(Part.Circle(App.Vector(25.1, 60.8, 0), App.Vector(0, 0, 1), 1.1), False)
sketch9.addGeometry(Part.Circle(App.Vector(25.1, 81.1, 0), App.Vector(0, 0, 1), 1.1), False)
sketch9.addGeometry(Part.Circle(App.Vector(12.4, 81.1, 0), App.Vector(0, 0, 1), 1.1), False)
sketch9.addGeometry(Part.Circle(App.Vector(12.4, 60.8, 0), App.Vector(0, 0, 1), 1.1), False)
sketch9.addGeometry(Part.Circle(App.Vector(-13, 60.8, 0), App.Vector(0, 0, 1), 1.1), False)
sketch9.addGeometry(Part.Circle(App.Vector(-13, 81.1, 0), App.Vector(0, 0, 1), 1.1), False)
sketch9.addConstraint(Sketcher.Constraint("Equal", 0, 1))
sketch9.addConstraint(Sketcher.Constraint("Equal", 1, 2))
sketch9.addConstraint(Sketcher.Constraint("Equal", 2, 3))
sketch9.addConstraint(Sketcher.Constraint("Equal", 3, 4))
sketch9.addConstraint(Sketcher.Constraint("Equal", 4, 5))
sketch9.addConstraint(Sketcher.Constraint("Equal", 5, 6))
sketch9.addConstraint(Sketcher.Constraint("Equal", 6, 7))
sketch9.addConstraint(Sketcher.Constraint("Horizontal", 1, 3, 2, 3))
sketch9.addConstraint(Sketcher.Constraint("Horizontal", 0, 3, 3, 3))
sketch9.addConstraint(Sketcher.Constraint("Horizontal", 3, 3, 4, 3))
sketch9.addConstraint(Sketcher.Constraint("Horizontal", 2, 3, 5, 3))
sketch9.addConstraint(Sketcher.Constraint("Horizontal", 5, 3, 6, 3))
sketch9.addConstraint(Sketcher.Constraint("Horizontal", 4, 3, 7, 3))
sketch9.addConstraint(Sketcher.Constraint("Vertical", 0, 3, 1, 3))
sketch9.addConstraint(Sketcher.Constraint("Vertical", 2, 3, 3, 3))
sketch9.addConstraint(Sketcher.Constraint("Vertical", 4, 3, 5, 3))
sketch9.addConstraint(Sketcher.Constraint("Vertical", 6, 3, 7, 3))
sketch9.addConstraint(Sketcher.Constraint("Diameter", 0, Q("0.089 in")))
sketch9.addConstraint(Sketcher.Constraint("DistanceX", 2, 3, 1, 3, Q("1 in")))
sketch9.addConstraint(Sketcher.Constraint("DistanceX", 6, 3, 5, 3, Q("1 in")))
sketch9.addConstraint(Sketcher.Constraint("DistanceY", 1, 3, 0, 3, Q("0.8 in")))
sketch9.addConstraint(Sketcher.Constraint("DistanceX", 4, 3, 3, 3, Q("0.5 in")))
sketch9.addConstraint(Sketcher.Constraint("DistanceX", -1, 1, 0, 3, Q("1.9875 in")))
sketch9.addConstraint(Sketcher.Constraint("DistanceY", -1, 1, 0, 3, Q("3.1918 in")))
sketch9.setExpression("Constraints[17]", "Params.sketch9_diameter")
pocket7 = doc.addObject("PartDesign::Pocket", "Pocket006")
body.addObject(pocket7)
pocket7.Profile = sketch9
pocket7.setExpression("Length", "Params.pocket7_length")

# Sketch on XY plane
sketch10 = doc.addObject("Sketcher::SketchObject", "Sketch009")
body.addObject(sketch10)
sketch10.AttachmentSupport = (doc.XY_Plane, [""])
sketch10.MapMode = "FlatFace"
sketch10.AttachmentOffset = App.Placement(App.Vector(0, 0, 0.126 * 25.4), App.Rotation())
sketch10.addGeometry(Part.LineSegment(App.Vector(104.5, 73.7, 0), App.Vector(79.1, 73.7, 0)), False)
sketch10.addGeometry(Part.ArcOfCircle(Part.Circle(App.Vector(79.1, 67.4, 0), App.Vector(0, 0, 1), 6.3), math.radians(90), math.radians(270)), False)
sketch10.addGeometry(Part.LineSegment(App.Vector(79.1, 61, 0), App.Vector(104.5, 61, 0)), False)
sketch10.addGeometry(Part.ArcOfCircle(Part.Circle(App.Vector(104.5, 67.4, 0), App.Vector(0, 0, 1), 6.3), math.radians(-90), math.radians(90)), False)
sketch10.addGeometry(Part.LineSegment(App.Vector(97.5, 22.1, 0), App.Vector(78.4, 22.1, 0)), False)
sketch10.addGeometry(Part.ArcOfCircle(Part.Circle(App.Vector(78.4, 18.9, 0), App.Vector(0, 0, 1), 3.2), math.radians(90), math.radians(270)), False)
sketch10.addGeometry(Part.LineSegment(App.Vector(78.4, 15.7, 0), App.Vector(97.5, 15.7, 0)), False)
sketch10.addGeometry(Part.ArcOfCircle(Part.Circle(App.Vector(97.5, 18.9, 0), App.Vector(0, 0, 1), 3.2), math.radians(-90), math.radians(90)), False)
sketch10.addConstraint(Sketcher.Constraint("Tangent", 0, 2, 1, 1))
sketch10.addConstraint(Sketcher.Constraint("Tangent", 1, 2, 2, 1))
sketch10.addConstraint(Sketcher.Constraint("Tangent", 2, 2, 3, 1))
sketch10.addConstraint(Sketcher.Constraint("Tangent", 3, 2, 0, 1))
sketch10.addConstraint(Sketcher.Constraint("Tangent", 4, 2, 5, 1))
sketch10.addConstraint(Sketcher.Constraint("Tangent", 5, 2, 6, 1))
sketch10.addConstraint(Sketcher.Constraint("Tangent", 6, 2, 7, 1))
sketch10.addConstraint(Sketcher.Constraint("Tangent", 7, 2, 4, 1))
sketch10.addConstraint(Sketcher.Constraint("Horizontal", 0))
sketch10.addConstraint(Sketcher.Constraint("Horizontal", 2))
sketch10.addConstraint(Sketcher.Constraint("Horizontal", 4))
sketch10.addConstraint(Sketcher.Constraint("Horizontal", 6))
sketch10.addConstraint(Sketcher.Constraint("DistanceX", 0, 2, 0, 1, Q("1 in")))
sketch10.addConstraint(Sketcher.Constraint("Radius", 1, Q("0.25 in")))
sketch10.addConstraint(Sketcher.Constraint("Radius", 5, Q("0.125 in")))
sketch10.addConstraint(Sketcher.Constraint("DistanceX", 4, 2, 4, 1, Q("0.75 in")))
sketch10.addConstraint(Sketcher.Constraint("DistanceX", 5, 3, 1, 3, Q("0.025 in")))
sketch10.addConstraint(Sketcher.Constraint("DistanceX", -1, 1, 1, 3, Q("3.1125 in")))
sketch10.addConstraint(Sketcher.Constraint("DistanceY", -1, 1, 1, 3, Q("2.6518 in")))
sketch10.addConstraint(Sketcher.Constraint("DistanceY", -1, 1, 5, 3, Q("0.7444 in")))
sketch10.setExpression("Constraints[12]", "Params.sketch10_width")
sketch10.setExpression("Constraints[13]", "Params.sketch10_radius")
sketch10.setExpression("Constraints[14]", "Params.sketch10_radius2")
sketch10.setExpression("Constraints[15]", "Params.sketch10_width2")
pocket8 = doc.addObject("PartDesign::Pocket", "Pocket007")
body.addObject(pocket8)
pocket8.Profile = sketch10
pocket8.setExpression("Length", "Params.pocket8_length")
doc.recompute()

fillet = doc.addObject("PartDesign::Fillet", "Fillet")
body.addObject(fillet)
fillet.Base = (pocket8, edges_at(pocket8, [(121.158, 109.752, 1.6), (37.428, 114.574, 1.6), (25.52, 121.998, 1.6)]))
fillet.setExpression("Radius", "Params.fillet_radius")

# Sketch on XY plane
sketch11 = doc.addObject("Sketcher::SketchObject", "Sketch010")
body.addObject(sketch11)
sketch11.AttachmentSupport = (doc.XY_Plane, [""])
sketch11.MapMode = "FlatFace"
sketch11.AttachmentOffset = App.Placement(App.Vector(0, 0, 0.126 * 25.4), App.Rotation())
sketch11.addGeometry(Part.Circle(App.Vector(112.4, 24.7, 0), App.Vector(0, 0, 1), 1.1), False)
sketch11.addGeometry(Part.Circle(App.Vector(127.6, 13.1, 0), App.Vector(0, 0, 1), 1.1), False)
sketch11.addConstraint(Sketcher.Constraint("Equal", 0, 1))
sketch11.addConstraint(Sketcher.Constraint("Diameter", 0, Q("0.089 in")))
sketch11.addConstraint(Sketcher.Constraint("DistanceY", -1, 1, 0, 3, 24.6798))
sketch11.addConstraint(Sketcher.Constraint("DistanceY", -1, 1, 1, 3, 13.13572))
sketch11.addConstraint(Sketcher.Constraint("DistanceX", 0, 3, 1, 3, 15.15377))
sketch11.addConstraint(Sketcher.Constraint("DistanceX", -1, 1, 0, 3, 112.438115))
sketch11.setExpression("Constraints[1]", "Params.sketch11_diameter")
pocket9 = doc.addObject("PartDesign::Pocket", "Pocket008")
body.addObject(pocket9)
pocket9.Profile = sketch11
pocket9.setExpression("Length", "Params.pocket9_length")

# Sketch on XY plane
sketch12 = doc.addObject("Sketcher::SketchObject", "Sketch011")
body.addObject(sketch12)
sketch12.AttachmentSupport = (doc.XY_Plane, [""])
sketch12.MapMode = "FlatFace"
sketch12.AttachmentOffset = App.Placement(App.Vector(0, 0, 0.126 * 25.4), App.Rotation())
sketch12.addGeometry(Part.Circle(App.Vector(8.3, 18.9, 0), App.Vector(0, 0, 1), 2.2), False)
sketch12.addGeometry(Part.Circle(App.Vector(107.1, 18.9, 0), App.Vector(0, 0, 1), 2.2), False)
sketch12.addConstraint(Sketcher.Constraint("Equal", 0, 1))
sketch12.addConstraint(Sketcher.Constraint("Horizontal", 0, 3, 1, 3))
sketch12.addConstraint(Sketcher.Constraint("Diameter", 0, Q("0.17 in")))
sketch12.addConstraint(Sketcher.Constraint("DistanceX", -1, 1, 0, 3, Q("0.325 in")))
sketch12.addConstraint(Sketcher.Constraint("DistanceY", -1, 1, 0, 3, Q("0.7444 in")))
sketch12.addConstraint(Sketcher.Constraint("DistanceX", -1, 1, 1, 3, Q("4.2148 in")))
sketch12.setExpression("Constraints[2]", "Params.sketch12_diameter")
pocket10 = doc.addObject("PartDesign::Pocket", "Pocket009")
body.addObject(pocket10)
pocket10.Profile = sketch12
pocket10.setExpression("Length", "Params.pocket10_length")

# Sketch on XY plane
sketch13 = doc.addObject("Sketcher::SketchObject", "Sketch012")
body.addObject(sketch13)
sketch13.AttachmentSupport = (doc.XY_Plane, [""])
sketch13.MapMode = "FlatFace"
sketch13.addGeometry(Part.LineSegment(App.Vector(-17, 112, 0), App.Vector(-21, 61, 0)), False)
sketch13.addGeometry(Part.LineSegment(App.Vector(-21, 61, 0), App.Vector(-65, 66, 0)), False)
sketch13.addGeometry(Part.LineSegment(App.Vector(-65, 66, 0), App.Vector(-17, 112, 0)), False)
sketch13.addConstraint(Sketcher.Constraint("Coincident", 0, 2, 1, 1))
sketch13.addConstraint(Sketcher.Constraint("Coincident", 1, 2, 2, 1))
sketch13.addConstraint(Sketcher.Constraint("Coincident", 2, 2, 0, 1))
sketch13.addConstraint(Sketcher.Constraint("Distance", 1, 44.12119))
sketch13.addConstraint(Sketcher.Constraint("DistanceX", 1, 2, -1, 1, 65.105179))
sketch13.addConstraint(Sketcher.Constraint("DistanceY", -1, 1, 1, 2, 65.815562))
sketch13.addConstraint(Sketcher.Constraint("DistanceY", 0, 2, 2, 2, 50.93062))
sketch13.addConstraint(Sketcher.Constraint("Distance", 0, 51.131096))
sketch13.addConstraint(Sketcher.Constraint("Distance", 2, 66.786746))
pocket11 = doc.addObject("PartDesign::Pocket", "Pocket010")
body.addObject(pocket11)
pocket11.Profile = sketch13
pocket11.setExpression("Length", "Params.pocket11_length")
pocket11.Reversed = True
doc.recompute()

fillet2 = doc.addObject("PartDesign::Fillet", "Fillet001")
body.addObject(fillet2)
fillet2.Base = (pocket11, edges_at(pocket11, [(-48.23, 63.937, 1.6), (-17.518, 103.01, 1.6), (-21.255, 60.933, 1.6)]))
fillet2.setExpression("Radius", "Params.fillet2_radius")

doc.recompute()
